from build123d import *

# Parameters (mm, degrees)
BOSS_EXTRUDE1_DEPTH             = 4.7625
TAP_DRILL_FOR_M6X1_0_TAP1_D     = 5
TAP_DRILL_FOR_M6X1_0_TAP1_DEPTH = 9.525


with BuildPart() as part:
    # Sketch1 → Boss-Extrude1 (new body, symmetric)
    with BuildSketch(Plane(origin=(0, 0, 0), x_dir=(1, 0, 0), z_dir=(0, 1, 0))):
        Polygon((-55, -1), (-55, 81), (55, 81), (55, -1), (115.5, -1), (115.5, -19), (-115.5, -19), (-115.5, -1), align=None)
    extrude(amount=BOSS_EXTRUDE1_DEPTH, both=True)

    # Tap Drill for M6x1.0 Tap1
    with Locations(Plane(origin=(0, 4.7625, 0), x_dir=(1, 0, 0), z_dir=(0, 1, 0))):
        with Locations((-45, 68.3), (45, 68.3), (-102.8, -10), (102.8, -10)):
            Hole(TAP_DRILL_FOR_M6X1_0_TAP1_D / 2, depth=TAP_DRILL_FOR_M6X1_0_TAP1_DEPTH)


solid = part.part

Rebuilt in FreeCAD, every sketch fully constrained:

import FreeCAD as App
import Part
import Sketcher

V = App.Vector


def add_polygon(sketch, points):
    """Adds a closed chain of lines whose ends are joined by coincident constraints."""
    first, n = sketch.GeometryCount, len(points)
    for a, b in zip(points, points[1:] + points[:1]):
        sketch.addGeometry(Part.LineSegment(App.Vector(*a, 0), App.Vector(*b, 0)), False)
    for i in range(n):
        sketch.addConstraint(Sketcher.Constraint("Coincident", first + i, 2, first + (i + 1) % n, 1))

doc = App.newDocument("Part")
body = doc.addObject("PartDesign::Body", "Body")

# Sketch on XZ plane
sketch1 = body.newObject("Sketcher::SketchObject", "Sketch")
sketch1.AttachmentSupport = (doc.getObject("XZ_Plane"), [""])
sketch1.MapMode = "FlatFace"
add_polygon(sketch1, [(-55, -81), (-55, 1), (-116, 1), (-116, 19), (116, 19), (116, 1), (55, 1), (55, -81)])  # lines 0-7
sketch1.addConstraint([
    Sketcher.Constraint("Vertical", 0),
    Sketcher.Constraint("Horizontal", 1),
    Sketcher.Constraint("Vertical", 2),
    Sketcher.Constraint("Horizontal", 3),
    Sketcher.Constraint("Vertical", 4),
    Sketcher.Constraint("Horizontal", 5),
    Sketcher.Constraint("Vertical", 6),
    Sketcher.Constraint("Horizontal", 7),
    Sketcher.Constraint("Symmetric", 1, 2, 4, 2, -2),
    Sketcher.Constraint("Equal", 1, 5),
    Sketcher.Constraint("DistanceX", 3, 1, 3, 2, 231.0),
    Sketcher.Constraint("DistanceX", 7, 2, 7, 1, 110.0),
    Sketcher.Constraint("DistanceY", 0, 1, 0, 2, 82.0),
    Sketcher.Constraint("DistanceY", 2, 1, 2, 2, 18.0),
    Sketcher.Constraint("DistanceY", -1, 1, 0, 2, 1.0),
])
pad1 = body.newObject("PartDesign::Pad", "Pad")
pad1.Profile = sketch1
pad1.Length = 9.525
pad1.Midplane = True

# Sketch on XZ plane
sketch2 = body.newObject("Sketcher::SketchObject", "Sketch001")
sketch2.AttachmentSupport = (doc.getObject("XZ_Plane"), [""])
sketch2.MapMode = "FlatFace"
sketch2.AttachmentOffset = App.Placement(V(0, 0, -4.7625), App.Rotation())
sketch2.addGeometry([
    Part.Circle(V(-45, -68.3, 0), V(0, 0, 1), 2.5),
    Part.Circle(V(45, -68.3, 0), V(0, 0, 1), 2.5),
    Part.Circle(V(-102.8, 10, 0), V(0, 0, 1), 2.5),
    Part.Circle(V(102.8, 10, 0), V(0, 0, 1), 2.5),
], False)
sketch2.addConstraint([
    Sketcher.Constraint("Equal", 0, 1),
    Sketcher.Constraint("Equal", 1, 2),
    Sketcher.Constraint("Equal", 2, 3),
    Sketcher.Constraint("Symmetric", 0, 3, 1, 3, -2),
    Sketcher.Constraint("Symmetric", 2, 3, 3, 3, -2),
    Sketcher.Constraint("Diameter", 0, 5.0),
    Sketcher.Constraint("DistanceX", 0, 3, -1, 1, 45.0),
    Sketcher.Constraint("DistanceY", -1, 1, 2, 3, 10.0),
    Sketcher.Constraint("DistanceY", 0, 3, -1, 1, 68.3),
    Sketcher.Constraint("DistanceX", 2, 3, -1, 1, 102.8),
])
doc.recompute()
hole = body.newObject("PartDesign::Hole", "Hole")
hole.Profile = sketch2
hole.ThreadType = "None"
hole.Diameter = 5
hole.DepthType = "Dimension"
hole.Depth = 9.525
hole.DrillPoint = "Flat"
hole.Reversed = True

doc.recompute()
